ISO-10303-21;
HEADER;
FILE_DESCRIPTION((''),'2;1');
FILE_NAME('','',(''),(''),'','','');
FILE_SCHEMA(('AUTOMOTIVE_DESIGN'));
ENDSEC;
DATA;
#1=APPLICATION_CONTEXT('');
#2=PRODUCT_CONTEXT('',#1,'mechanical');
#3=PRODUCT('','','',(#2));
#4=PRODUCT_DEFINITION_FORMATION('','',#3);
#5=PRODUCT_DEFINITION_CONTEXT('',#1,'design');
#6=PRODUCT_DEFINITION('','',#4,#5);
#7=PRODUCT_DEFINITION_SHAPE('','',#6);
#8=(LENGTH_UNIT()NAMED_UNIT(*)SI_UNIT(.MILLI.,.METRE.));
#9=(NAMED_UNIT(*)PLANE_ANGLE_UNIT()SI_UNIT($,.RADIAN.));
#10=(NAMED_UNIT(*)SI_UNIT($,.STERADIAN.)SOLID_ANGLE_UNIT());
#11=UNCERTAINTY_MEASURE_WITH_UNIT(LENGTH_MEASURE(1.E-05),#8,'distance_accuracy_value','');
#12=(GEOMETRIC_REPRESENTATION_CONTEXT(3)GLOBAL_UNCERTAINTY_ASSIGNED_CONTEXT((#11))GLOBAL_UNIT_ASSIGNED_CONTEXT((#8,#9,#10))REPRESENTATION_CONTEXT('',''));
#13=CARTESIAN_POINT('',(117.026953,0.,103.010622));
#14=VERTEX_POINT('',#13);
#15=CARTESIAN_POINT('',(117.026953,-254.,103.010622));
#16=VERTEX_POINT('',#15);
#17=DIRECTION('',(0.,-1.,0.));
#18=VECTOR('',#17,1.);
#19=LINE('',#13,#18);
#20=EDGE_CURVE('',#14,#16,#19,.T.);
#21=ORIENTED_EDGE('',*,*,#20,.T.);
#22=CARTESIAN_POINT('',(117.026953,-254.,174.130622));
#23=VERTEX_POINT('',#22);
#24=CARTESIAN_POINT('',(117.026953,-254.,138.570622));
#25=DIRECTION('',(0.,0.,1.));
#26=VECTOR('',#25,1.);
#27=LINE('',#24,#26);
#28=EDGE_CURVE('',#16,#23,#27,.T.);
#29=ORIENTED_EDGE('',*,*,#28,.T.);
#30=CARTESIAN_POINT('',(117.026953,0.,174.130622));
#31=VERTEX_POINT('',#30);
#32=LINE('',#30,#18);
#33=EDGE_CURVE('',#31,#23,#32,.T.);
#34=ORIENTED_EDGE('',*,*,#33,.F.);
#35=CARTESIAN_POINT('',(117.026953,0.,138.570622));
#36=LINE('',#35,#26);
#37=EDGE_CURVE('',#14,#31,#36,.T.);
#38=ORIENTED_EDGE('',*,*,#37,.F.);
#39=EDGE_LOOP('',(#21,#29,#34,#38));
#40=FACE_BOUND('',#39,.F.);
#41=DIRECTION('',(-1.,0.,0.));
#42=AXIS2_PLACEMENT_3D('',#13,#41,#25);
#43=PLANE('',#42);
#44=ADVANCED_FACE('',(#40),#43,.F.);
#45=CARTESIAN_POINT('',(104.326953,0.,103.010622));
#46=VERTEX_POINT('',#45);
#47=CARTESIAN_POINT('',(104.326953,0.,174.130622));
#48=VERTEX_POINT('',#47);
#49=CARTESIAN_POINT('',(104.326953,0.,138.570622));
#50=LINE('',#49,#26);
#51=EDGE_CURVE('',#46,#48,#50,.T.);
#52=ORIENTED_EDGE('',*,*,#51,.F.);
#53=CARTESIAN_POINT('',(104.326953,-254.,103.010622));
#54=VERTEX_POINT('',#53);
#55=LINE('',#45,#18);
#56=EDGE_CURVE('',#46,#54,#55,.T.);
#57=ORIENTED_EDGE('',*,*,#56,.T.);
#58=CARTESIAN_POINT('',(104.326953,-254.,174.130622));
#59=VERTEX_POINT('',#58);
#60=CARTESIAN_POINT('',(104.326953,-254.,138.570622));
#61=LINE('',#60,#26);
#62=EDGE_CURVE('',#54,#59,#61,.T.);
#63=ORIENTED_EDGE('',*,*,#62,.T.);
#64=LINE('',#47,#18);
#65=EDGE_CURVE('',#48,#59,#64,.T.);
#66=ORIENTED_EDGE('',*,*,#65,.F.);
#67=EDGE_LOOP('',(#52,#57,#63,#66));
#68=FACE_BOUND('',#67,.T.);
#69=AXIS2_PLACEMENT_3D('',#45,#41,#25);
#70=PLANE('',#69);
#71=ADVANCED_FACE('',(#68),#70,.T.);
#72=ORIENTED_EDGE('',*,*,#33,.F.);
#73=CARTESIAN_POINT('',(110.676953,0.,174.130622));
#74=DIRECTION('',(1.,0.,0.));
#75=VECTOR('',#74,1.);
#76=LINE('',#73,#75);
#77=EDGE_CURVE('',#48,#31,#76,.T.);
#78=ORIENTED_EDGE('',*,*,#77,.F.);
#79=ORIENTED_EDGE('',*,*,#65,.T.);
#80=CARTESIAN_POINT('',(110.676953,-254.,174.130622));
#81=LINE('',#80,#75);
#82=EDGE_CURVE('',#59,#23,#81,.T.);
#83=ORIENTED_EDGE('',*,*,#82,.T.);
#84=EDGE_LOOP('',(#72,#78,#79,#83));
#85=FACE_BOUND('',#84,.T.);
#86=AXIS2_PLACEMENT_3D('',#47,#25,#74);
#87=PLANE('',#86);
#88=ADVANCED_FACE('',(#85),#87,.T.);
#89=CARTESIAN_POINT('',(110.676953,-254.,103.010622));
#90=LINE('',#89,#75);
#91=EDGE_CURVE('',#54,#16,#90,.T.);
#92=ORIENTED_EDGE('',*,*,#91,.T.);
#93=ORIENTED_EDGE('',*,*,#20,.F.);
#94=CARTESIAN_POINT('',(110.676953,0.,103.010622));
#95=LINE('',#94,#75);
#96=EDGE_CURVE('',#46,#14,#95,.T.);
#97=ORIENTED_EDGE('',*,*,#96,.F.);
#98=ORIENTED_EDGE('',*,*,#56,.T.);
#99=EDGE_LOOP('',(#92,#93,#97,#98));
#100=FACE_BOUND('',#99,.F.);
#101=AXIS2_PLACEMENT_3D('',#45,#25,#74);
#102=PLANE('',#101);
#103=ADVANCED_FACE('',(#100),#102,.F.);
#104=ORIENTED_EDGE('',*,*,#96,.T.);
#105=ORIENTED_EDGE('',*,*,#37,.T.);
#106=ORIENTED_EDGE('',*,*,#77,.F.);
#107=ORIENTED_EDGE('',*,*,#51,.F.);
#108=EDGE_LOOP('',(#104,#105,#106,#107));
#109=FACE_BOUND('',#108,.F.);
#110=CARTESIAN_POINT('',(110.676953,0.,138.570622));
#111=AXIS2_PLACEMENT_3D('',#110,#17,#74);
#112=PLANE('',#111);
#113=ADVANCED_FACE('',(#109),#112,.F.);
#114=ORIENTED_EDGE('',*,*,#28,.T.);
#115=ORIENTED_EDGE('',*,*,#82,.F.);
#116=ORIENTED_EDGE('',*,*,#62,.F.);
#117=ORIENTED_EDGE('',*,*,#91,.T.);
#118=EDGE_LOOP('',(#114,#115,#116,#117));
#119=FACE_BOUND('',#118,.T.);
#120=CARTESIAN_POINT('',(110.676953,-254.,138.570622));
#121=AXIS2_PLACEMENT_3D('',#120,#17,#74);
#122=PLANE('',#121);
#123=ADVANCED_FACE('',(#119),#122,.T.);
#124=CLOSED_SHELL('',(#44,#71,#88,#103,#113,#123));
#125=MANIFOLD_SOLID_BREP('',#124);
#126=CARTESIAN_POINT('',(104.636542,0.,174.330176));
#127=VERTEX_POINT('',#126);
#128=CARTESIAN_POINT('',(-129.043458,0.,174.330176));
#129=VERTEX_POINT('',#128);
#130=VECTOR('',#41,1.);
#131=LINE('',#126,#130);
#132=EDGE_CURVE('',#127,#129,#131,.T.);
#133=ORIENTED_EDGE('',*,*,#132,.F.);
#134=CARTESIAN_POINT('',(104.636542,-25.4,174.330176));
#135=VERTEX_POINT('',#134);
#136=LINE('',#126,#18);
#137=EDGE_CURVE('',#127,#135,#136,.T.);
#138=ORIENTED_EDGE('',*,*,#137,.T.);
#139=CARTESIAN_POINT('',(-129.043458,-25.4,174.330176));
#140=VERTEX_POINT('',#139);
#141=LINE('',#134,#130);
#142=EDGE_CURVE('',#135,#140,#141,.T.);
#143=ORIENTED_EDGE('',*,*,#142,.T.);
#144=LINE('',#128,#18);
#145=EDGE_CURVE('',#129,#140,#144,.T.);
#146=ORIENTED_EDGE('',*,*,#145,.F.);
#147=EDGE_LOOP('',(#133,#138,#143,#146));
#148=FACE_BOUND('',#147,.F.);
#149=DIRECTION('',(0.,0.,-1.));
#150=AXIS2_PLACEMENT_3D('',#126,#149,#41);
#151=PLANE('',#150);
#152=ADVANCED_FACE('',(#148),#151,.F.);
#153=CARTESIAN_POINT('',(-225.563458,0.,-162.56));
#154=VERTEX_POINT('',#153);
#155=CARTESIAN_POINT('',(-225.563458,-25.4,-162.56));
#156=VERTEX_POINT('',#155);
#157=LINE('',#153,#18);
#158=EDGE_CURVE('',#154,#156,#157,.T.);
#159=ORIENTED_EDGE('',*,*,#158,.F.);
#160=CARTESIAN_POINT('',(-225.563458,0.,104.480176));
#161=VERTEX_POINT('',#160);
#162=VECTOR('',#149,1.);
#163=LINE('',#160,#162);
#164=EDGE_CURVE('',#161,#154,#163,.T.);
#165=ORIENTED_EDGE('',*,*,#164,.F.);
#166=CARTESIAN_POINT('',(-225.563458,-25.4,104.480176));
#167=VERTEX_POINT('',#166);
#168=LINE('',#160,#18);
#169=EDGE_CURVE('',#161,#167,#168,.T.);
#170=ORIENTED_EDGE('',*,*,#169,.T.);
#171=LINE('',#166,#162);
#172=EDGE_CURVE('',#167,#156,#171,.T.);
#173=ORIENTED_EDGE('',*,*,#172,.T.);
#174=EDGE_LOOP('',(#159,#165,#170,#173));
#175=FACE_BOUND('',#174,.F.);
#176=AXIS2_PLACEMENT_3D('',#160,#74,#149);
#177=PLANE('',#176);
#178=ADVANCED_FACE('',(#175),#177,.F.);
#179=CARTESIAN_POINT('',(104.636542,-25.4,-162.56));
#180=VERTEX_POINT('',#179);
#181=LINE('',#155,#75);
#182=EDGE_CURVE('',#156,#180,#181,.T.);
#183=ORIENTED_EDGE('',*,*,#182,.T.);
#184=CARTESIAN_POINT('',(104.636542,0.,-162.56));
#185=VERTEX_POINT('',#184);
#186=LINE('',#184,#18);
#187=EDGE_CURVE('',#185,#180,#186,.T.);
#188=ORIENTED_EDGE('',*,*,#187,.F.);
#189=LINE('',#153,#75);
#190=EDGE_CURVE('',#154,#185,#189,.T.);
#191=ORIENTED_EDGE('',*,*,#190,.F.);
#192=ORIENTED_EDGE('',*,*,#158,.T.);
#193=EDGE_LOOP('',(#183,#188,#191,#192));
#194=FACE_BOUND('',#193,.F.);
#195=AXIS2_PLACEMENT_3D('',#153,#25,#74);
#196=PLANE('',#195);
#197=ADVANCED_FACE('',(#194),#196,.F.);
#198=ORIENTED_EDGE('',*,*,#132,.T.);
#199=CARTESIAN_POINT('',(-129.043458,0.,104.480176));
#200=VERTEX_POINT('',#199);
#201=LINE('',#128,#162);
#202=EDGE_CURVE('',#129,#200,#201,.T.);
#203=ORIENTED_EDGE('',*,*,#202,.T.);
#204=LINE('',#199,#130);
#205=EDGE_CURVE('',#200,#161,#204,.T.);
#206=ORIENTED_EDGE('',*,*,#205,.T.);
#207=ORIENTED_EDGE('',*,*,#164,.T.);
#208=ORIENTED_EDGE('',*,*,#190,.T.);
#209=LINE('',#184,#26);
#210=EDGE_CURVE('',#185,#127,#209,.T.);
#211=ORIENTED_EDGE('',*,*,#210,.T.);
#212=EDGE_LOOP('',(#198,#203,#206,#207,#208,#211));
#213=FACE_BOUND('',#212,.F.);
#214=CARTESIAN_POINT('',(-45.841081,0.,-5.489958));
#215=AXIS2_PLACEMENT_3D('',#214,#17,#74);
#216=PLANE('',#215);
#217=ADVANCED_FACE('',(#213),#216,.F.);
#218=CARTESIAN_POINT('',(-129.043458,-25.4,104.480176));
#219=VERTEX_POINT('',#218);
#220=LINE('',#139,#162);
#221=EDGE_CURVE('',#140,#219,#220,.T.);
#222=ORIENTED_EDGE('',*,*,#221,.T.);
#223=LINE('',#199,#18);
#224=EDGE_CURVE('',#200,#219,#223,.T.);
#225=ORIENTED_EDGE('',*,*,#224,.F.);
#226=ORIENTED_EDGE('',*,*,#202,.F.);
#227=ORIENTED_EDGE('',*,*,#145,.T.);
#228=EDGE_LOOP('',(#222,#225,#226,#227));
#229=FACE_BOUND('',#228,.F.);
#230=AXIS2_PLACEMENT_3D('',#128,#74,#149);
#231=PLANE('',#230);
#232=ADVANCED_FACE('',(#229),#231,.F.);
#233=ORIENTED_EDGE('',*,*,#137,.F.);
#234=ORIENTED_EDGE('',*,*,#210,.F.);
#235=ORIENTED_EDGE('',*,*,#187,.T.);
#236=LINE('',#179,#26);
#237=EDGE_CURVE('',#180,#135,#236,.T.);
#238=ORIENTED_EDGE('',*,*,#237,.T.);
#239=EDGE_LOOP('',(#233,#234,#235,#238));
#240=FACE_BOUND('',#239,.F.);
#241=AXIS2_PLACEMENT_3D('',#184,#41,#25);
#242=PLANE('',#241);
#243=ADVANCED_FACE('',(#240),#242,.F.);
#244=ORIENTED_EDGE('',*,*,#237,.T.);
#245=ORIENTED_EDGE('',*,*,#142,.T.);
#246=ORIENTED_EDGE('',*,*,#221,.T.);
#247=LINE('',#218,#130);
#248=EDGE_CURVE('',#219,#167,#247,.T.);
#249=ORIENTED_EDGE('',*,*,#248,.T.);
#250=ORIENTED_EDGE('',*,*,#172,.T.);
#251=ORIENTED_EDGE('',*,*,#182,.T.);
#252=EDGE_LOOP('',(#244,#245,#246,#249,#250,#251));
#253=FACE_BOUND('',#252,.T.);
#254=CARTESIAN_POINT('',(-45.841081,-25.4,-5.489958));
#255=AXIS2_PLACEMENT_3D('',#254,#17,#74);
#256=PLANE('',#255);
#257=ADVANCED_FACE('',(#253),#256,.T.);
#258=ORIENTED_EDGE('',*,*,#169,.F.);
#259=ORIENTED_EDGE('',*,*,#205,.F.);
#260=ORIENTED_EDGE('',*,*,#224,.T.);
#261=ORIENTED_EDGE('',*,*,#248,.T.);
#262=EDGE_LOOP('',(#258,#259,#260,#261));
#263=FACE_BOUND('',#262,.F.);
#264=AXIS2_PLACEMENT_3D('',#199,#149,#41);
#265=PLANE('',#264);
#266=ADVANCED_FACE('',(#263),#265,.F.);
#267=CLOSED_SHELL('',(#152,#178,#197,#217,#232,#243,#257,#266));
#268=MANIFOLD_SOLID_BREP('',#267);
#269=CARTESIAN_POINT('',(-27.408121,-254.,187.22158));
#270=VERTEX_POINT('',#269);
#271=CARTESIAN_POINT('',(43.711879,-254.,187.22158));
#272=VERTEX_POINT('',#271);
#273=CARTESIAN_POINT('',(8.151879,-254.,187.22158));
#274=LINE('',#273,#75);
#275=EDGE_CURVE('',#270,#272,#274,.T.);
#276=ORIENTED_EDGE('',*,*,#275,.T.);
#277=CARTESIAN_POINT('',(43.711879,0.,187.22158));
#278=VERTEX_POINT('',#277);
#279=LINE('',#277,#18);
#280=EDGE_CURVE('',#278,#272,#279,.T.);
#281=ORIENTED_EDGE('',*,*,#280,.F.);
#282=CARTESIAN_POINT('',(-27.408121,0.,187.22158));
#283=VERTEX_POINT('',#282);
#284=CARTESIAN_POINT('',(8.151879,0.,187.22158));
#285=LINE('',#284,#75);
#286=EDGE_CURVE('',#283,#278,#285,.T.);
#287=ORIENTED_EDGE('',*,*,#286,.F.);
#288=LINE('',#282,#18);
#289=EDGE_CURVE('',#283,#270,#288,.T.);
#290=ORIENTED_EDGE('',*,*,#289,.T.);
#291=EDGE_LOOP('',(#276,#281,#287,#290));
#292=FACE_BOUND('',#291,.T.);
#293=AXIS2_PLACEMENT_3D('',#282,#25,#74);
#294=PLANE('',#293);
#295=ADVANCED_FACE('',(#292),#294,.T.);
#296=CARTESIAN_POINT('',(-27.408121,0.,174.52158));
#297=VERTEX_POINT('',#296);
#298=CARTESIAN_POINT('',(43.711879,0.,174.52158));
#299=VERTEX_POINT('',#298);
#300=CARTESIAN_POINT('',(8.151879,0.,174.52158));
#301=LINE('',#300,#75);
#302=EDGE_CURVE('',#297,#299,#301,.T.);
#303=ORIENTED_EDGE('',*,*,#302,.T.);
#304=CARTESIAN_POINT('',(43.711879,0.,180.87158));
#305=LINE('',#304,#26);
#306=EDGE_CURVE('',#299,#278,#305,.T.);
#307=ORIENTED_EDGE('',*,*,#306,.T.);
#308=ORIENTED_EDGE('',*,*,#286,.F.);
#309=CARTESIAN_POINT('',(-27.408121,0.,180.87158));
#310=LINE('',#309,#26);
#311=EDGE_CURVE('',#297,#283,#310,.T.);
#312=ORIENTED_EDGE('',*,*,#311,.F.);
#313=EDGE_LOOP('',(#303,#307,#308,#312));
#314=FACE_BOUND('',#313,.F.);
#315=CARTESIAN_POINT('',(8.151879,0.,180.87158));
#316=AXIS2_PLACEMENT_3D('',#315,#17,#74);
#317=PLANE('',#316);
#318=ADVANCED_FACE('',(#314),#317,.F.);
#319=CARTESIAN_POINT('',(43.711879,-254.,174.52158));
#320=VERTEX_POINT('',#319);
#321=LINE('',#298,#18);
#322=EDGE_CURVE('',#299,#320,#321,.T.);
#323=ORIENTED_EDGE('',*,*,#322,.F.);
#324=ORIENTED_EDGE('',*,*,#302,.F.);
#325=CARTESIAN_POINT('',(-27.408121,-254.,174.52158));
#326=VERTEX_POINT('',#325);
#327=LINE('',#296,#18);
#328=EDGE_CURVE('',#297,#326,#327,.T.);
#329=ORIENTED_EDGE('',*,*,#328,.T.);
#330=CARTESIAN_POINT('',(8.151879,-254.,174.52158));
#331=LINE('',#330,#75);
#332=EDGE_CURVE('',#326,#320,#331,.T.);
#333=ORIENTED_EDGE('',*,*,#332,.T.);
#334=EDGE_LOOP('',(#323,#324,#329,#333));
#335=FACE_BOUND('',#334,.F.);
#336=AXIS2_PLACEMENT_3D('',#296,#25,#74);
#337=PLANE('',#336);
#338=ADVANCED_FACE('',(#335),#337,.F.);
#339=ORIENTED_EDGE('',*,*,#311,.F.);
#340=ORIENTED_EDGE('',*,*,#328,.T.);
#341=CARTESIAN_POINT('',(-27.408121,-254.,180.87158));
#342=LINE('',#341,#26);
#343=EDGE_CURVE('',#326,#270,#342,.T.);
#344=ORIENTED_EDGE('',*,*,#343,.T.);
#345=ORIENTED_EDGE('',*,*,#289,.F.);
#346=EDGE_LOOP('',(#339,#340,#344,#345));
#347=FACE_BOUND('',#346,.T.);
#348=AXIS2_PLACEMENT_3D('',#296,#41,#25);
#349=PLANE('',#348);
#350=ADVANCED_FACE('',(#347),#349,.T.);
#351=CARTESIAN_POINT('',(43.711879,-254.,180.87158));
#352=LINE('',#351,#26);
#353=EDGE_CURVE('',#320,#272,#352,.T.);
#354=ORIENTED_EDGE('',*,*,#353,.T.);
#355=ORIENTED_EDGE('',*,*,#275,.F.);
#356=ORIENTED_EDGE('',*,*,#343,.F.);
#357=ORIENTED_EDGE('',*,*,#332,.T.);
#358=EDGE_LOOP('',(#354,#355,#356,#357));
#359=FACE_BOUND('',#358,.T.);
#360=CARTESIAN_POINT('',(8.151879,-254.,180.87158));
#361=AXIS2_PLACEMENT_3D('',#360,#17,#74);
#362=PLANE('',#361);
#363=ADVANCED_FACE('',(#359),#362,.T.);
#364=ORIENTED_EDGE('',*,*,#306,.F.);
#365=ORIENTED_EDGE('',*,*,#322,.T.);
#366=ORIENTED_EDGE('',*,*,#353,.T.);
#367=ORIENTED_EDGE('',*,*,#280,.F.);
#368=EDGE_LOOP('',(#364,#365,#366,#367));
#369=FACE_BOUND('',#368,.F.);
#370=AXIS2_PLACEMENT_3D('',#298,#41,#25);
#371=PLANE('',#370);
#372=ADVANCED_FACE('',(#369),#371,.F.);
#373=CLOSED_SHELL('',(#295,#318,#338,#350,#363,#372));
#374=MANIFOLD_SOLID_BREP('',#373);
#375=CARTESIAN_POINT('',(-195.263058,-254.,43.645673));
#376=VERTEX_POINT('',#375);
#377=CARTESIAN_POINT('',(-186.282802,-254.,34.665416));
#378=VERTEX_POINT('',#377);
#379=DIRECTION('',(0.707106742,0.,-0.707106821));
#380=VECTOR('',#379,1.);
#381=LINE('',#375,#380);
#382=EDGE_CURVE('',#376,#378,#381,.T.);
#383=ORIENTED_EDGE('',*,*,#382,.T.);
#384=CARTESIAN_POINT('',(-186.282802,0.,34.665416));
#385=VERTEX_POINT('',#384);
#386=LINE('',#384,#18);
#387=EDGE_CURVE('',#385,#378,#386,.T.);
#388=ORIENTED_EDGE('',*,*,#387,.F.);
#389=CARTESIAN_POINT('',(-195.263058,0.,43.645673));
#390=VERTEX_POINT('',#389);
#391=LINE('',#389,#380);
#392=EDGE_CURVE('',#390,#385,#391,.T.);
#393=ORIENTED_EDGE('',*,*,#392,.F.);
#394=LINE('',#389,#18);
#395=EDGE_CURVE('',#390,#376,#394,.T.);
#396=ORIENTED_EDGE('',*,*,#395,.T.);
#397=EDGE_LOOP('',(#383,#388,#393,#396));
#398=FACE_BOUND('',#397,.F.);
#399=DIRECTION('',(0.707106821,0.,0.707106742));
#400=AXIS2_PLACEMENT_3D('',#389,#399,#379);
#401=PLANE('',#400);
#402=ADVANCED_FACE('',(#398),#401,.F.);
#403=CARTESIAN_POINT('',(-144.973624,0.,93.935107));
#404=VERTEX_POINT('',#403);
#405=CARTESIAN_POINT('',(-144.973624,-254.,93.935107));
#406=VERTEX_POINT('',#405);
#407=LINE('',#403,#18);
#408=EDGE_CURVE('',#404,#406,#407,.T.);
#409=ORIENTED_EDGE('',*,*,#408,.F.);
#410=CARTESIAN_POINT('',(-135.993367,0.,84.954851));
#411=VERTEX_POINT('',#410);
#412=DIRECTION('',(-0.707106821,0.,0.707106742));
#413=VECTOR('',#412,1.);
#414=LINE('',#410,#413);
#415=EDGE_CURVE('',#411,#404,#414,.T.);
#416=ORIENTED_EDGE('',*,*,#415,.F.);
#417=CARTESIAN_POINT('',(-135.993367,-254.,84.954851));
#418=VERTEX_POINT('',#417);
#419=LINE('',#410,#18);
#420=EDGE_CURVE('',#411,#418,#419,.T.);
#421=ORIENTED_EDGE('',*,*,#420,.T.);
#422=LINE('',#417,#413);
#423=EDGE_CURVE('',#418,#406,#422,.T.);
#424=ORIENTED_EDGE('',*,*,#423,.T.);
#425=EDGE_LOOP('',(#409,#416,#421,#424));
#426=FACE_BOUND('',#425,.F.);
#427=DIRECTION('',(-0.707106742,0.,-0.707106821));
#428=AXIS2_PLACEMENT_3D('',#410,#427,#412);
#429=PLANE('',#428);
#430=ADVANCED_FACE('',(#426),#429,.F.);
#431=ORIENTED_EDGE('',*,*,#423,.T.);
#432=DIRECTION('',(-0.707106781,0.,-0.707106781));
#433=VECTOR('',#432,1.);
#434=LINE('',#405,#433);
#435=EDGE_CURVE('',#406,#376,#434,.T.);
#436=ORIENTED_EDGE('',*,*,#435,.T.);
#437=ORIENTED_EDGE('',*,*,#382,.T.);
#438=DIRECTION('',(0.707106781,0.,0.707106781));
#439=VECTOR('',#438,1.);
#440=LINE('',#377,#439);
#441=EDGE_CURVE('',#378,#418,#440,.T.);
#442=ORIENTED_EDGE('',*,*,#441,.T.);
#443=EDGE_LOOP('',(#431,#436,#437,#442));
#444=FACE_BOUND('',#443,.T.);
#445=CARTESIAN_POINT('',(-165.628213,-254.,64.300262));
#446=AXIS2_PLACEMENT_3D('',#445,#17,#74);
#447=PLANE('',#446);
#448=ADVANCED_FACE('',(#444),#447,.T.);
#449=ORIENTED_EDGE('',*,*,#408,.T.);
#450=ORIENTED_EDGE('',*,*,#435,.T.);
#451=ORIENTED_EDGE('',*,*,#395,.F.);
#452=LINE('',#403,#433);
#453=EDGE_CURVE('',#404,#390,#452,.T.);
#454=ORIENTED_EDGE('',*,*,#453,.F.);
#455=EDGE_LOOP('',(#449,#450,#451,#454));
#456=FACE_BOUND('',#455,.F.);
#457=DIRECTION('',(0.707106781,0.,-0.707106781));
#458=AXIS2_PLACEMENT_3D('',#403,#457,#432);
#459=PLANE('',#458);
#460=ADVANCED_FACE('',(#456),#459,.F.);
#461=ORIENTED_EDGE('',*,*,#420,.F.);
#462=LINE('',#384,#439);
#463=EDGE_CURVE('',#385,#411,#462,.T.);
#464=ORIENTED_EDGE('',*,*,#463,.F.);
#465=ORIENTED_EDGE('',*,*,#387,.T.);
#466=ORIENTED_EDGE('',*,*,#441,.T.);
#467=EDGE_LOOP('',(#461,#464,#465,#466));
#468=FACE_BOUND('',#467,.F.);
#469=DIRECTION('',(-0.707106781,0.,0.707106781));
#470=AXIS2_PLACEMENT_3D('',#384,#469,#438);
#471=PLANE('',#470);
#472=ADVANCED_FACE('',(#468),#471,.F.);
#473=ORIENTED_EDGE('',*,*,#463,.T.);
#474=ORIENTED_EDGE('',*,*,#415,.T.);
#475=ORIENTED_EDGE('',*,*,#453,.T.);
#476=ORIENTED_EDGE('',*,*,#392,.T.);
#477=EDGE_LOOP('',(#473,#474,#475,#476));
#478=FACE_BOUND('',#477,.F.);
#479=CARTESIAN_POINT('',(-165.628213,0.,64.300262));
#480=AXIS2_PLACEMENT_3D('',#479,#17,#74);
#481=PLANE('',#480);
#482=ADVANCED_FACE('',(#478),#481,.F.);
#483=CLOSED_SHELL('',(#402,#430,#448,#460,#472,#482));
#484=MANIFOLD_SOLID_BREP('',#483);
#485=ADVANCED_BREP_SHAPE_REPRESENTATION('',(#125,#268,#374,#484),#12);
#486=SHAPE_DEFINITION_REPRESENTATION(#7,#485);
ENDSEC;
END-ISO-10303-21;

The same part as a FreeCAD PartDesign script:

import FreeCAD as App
import Part
import Sketcher
from FreeCAD import Vector
Q = App.Units.Quantity


def add_polygon(sketch, points):
    """Adds a closed chain of lines whose ends are joined by coincident constraints."""
    first, n = sketch.GeometryCount, len(points)
    for a, b in zip(points, points[1:] + points[:1]):
        sketch.addGeometry(Part.LineSegment(App.Vector(*a, 0), App.Vector(*b, 0)), False)
    for i in range(n):
        sketch.addConstraint(Sketcher.Constraint("Coincident", first + i, 2, first + (i + 1) % n, 1))

doc = App.newDocument("Part")
body = doc.addObject("PartDesign::Body", "Body")

sketch1 = doc.addObject("Sketcher::SketchObject", "Sketch")
body.addObject(sketch1)
sketch1.AttachmentSupport = (doc.XZ_Plane, [""])
sketch1.MapMode = "FlatFace"
add_polygon(sketch1, [(105, -163), (105, 174), (-129, 174), (-129, 104), (-226, 104), (-226, -163)])
sketch1.addConstraint([
    Sketcher.Constraint("Vertical", 0),
    Sketcher.Constraint("Horizontal", 1),
    Sketcher.Constraint("Vertical", 2),
    Sketcher.Constraint("Horizontal", 3),
    Sketcher.Constraint("Vertical", 4),
    Sketcher.Constraint("Horizontal", 5),
    Sketcher.Constraint("DistanceX", 5, 1, 5, 2, Q("13 in")),
    Sketcher.Constraint("DistanceX", 1, 2, 1, 1, Q("9.2 in")),
    Sketcher.Constraint("DistanceY", 2, 2, 2, 1, Q("2.75 in")),
    Sketcher.Constraint("DistanceY", 4, 2, -1, 1, Q("6.4 in")),
    Sketcher.Constraint("DistanceY", 0, 1, 0, 2, Q("336.890176 mm")),
    Sketcher.Constraint("DistanceX", 3, 2, -1, 1, Q("225.563458 mm")),
])
pad1 = doc.addObject("PartDesign::Pad", "Pad")
body.addObject(pad1)
pad1.Profile = sketch1
pad1.Length = Q("1 in")

sketch2 = doc.addObject("Sketcher::SketchObject", "Sketch001")
body.addObject(sketch2)
sketch2.AttachmentSupport = (doc.XZ_Plane, [""])
sketch2.MapMode = "FlatFace"
add_polygon(sketch2, [(-223, 14), (-218, 9), (-200, 27), (-206, 33)])
sketch2.addConstraint([
    Sketcher.Constraint("Perpendicular", 0, 1),
    Sketcher.Constraint("Perpendicular", 1, 2),
    Sketcher.Constraint("Perpendicular", 2, 3),
    Sketcher.Constraint("Distance", 1, Q("1 in")),
    Sketcher.Constraint("Distance", 0, Q("0.3 in")),
    Sketcher.Constraint("DistanceY", -1, 1, 2, 2, Q("32.7375 mm")),
    Sketcher.Constraint("DistanceX", 0, 2, -1, 1, Q("217.975392 mm")),
    Sketcher.Constraint("DistanceX", 3, 2, -1, 1, Q("223.457229 mm")),
])
pad2 = doc.addObject("PartDesign::Pad", "Pad001")
body.addObject(pad2)
pad2.Profile = sketch2
pad2.Length = Q("1 in")
body2 = doc.addObject("PartDesign::Body", "Body001")
body2.AllowCompound = True

sketch3 = doc.addObject("Sketcher::SketchObject", "Sketch002")
body2.addObject(sketch3)
sketch3.AttachmentSupport = (doc.getObject("XZ_Plane001"), [""])
sketch3.MapMode = "FlatFace"
add_polygon(sketch3, [(-27, 187), (-27, 175), (44, 175), (44, 187)])
add_polygon(sketch3, [(104, 174), (104, 103), (117, 103), (117, 174)])
add_polygon(sketch3, [(-195, 44), (-186, 35), (-136, 85), (-145, 94)])
sketch3.addConstraint([
    Sketcher.Constraint("Vertical", 0),
    Sketcher.Constraint("Horizontal", 1),
    Sketcher.Constraint("Vertical", 2),
    Sketcher.Constraint("Horizontal", 3),
    Sketcher.Constraint("Vertical", 4),
    Sketcher.Constraint("Horizontal", 5),
    Sketcher.Constraint("Vertical", 6),
    Sketcher.Constraint("Horizontal", 7),
    Sketcher.Constraint("Perpendicular", 8, 9),
    Sketcher.Constraint("Perpendicular", 9, 10),
    Sketcher.Constraint("Perpendicular", 10, 11),
    Sketcher.Constraint("Equal", 7, 0),
    Sketcher.Constraint("Equal", 3, 4),
    Sketcher.Constraint("DistanceX", 1, 1, 1, 2, Q("2.8 in")),
    Sketcher.Constraint("DistanceX", 5, 1, 5, 2, Q("0.5 in")),
    Sketcher.Constraint("Angle", 8, Q("-45.000003 deg")),
    Sketcher.Constraint("Distance", 8, Q("0.5 in")),
    Sketcher.Constraint("Distance", 9, Q("2.8 in")),
    Sketcher.Constraint("DistanceX", 8, 2, -1, 1, Q("186.282802 mm")),
    Sketcher.Constraint("DistanceX", 0, 2, -1, 1, Q("27.408121 mm")),
    Sketcher.Constraint("DistanceY", -1, 1, 0, 2, Q("174.52158 mm")),
    Sketcher.Constraint("DistanceY", -1, 1, 4, 2, Q("103.010622 mm")),
    Sketcher.Constraint("DistanceY", -1, 1, 9, 2, Q("84.954851 mm")),
    Sketcher.Constraint("DistanceX", -1, 1, 4, 2, Q("104.326953 mm")),
])
pad3 = doc.addObject("PartDesign::Pad", "Pad002")
body2.addObject(pad3)
pad3.Profile = sketch3
pad3.Length = Q("10 in")

doc.recompute()
